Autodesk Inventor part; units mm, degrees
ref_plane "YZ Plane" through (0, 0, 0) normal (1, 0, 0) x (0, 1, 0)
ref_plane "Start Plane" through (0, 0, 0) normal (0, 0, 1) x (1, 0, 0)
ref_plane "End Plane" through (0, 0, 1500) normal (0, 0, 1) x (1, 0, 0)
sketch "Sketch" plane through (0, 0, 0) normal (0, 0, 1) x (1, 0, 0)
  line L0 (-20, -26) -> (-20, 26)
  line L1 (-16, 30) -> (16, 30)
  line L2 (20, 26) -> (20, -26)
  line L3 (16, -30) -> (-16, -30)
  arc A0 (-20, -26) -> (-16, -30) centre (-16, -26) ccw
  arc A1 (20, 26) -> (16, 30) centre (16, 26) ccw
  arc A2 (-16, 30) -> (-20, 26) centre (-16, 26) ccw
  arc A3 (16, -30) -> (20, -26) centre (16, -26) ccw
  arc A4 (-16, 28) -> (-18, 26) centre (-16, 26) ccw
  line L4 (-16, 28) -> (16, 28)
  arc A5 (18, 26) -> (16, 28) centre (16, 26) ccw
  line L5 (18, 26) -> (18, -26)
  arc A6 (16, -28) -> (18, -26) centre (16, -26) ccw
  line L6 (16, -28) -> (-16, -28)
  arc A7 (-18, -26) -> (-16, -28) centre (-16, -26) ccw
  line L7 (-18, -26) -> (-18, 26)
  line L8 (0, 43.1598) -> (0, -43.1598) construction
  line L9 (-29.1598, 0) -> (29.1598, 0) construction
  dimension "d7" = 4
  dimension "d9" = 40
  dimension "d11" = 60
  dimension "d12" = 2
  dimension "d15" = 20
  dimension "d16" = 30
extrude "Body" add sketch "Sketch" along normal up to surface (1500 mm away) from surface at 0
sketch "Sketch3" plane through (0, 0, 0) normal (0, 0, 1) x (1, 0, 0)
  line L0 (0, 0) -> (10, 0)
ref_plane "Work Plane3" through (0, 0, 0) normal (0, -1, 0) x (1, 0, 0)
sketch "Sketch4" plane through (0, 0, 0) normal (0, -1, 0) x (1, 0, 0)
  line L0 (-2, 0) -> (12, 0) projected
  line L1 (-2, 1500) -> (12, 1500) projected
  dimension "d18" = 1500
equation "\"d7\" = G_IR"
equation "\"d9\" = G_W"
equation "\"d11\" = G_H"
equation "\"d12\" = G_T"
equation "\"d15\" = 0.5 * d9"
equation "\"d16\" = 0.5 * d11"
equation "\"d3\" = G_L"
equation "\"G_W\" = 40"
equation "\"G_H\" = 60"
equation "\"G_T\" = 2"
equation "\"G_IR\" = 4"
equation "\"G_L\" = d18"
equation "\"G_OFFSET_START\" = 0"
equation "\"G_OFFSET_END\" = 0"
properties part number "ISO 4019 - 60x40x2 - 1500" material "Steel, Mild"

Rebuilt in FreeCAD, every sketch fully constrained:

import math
import FreeCAD as App
import Part
import Sketcher
Q = App.Units.Quantity

doc = App.newDocument("Part")
body = doc.addObject("PartDesign::Body", "Body")

# Sketch on XY plane
sketch1 = body.newObject("Sketcher::SketchObject", "Sketch")
sketch1.AttachmentSupport = (doc.getObject("XY_Plane"), [""])
sketch1.MapMode = "FlatFace"
sketch1.addGeometry([
    Part.LineSegment(App.Vector(-20, 26, 0), App.Vector(-20, -26, 0)),  # 0
    Part.ArcOfCircle(Part.Circle(App.Vector(-16, -26, 0), App.Vector(0, 0, 1), 4), math.radians(180), math.radians(270)),  # 1
    Part.LineSegment(App.Vector(-16, -30, 0), App.Vector(16, -30, 0)),  # 2
    Part.ArcOfCircle(Part.Circle(App.Vector(16, -26, 0), App.Vector(0, 0, 1), 4), math.radians(-90), math.radians(0)),  # 3
    Part.LineSegment(App.Vector(20, -26, 0), App.Vector(20, 26, 0)),  # 4
    Part.ArcOfCircle(Part.Circle(App.Vector(16, 26, 0), App.Vector(0, 0, 1), 4), math.radians(0), math.radians(90)),  # 5
    Part.LineSegment(App.Vector(16, 30, 0), App.Vector(-16, 30, 0)),  # 6
    Part.ArcOfCircle(Part.Circle(App.Vector(-16, 26, 0), App.Vector(0, 0, 1), 4), math.radians(90), math.radians(180)),  # 7
    Part.ArcOfCircle(Part.Circle(App.Vector(-16, 26, 0), App.Vector(0, 0, 1), 2), math.radians(90), math.radians(180)),  # 8
    Part.LineSegment(App.Vector(-16, 28, 0), App.Vector(16, 28, 0)),  # 9
    Part.ArcOfCircle(Part.Circle(App.Vector(16, 26, 0), App.Vector(0, 0, 1), 2), math.radians(0), math.radians(90)),  # 10
    Part.LineSegment(App.Vector(18, 26, 0), App.Vector(18, -26, 0)),  # 11
    Part.ArcOfCircle(Part.Circle(App.Vector(16, -26, 0), App.Vector(0, 0, 1), 2), math.radians(-90), math.radians(0)),  # 12
    Part.LineSegment(App.Vector(16, -28, 0), App.Vector(-16, -28, 0)),  # 13
    Part.ArcOfCircle(Part.Circle(App.Vector(-16, -26, 0), App.Vector(0, 0, 1), 2), math.radians(180), math.radians(270)),  # 14
    Part.LineSegment(App.Vector(-18, -26, 0), App.Vector(-18, 26, 0)),  # 15
], False)
sketch1.addConstraint([
    Sketcher.Constraint("Tangent", 0, 2, 1, 1),
    Sketcher.Constraint("Tangent", 1, 2, 2, 1),
    Sketcher.Constraint("Tangent", 2, 2, 3, 1),
    Sketcher.Constraint("Tangent", 3, 2, 4, 1),
    Sketcher.Constraint("Tangent", 4, 2, 5, 1),
    Sketcher.Constraint("Tangent", 5, 2, 6, 1),
    Sketcher.Constraint("Tangent", 6, 2, 7, 1),
    Sketcher.Constraint("Tangent", 7, 2, 0, 1),
    Sketcher.Constraint("Tangent", 8, 1, 9, 1),
    Sketcher.Constraint("Tangent", 9, 2, 10, 2),
    Sketcher.Constraint("Tangent", 10, 1, 11, 1),
    Sketcher.Constraint("Tangent", 11, 2, 12, 2),
    Sketcher.Constraint("Tangent", 12, 1, 13, 1),
    Sketcher.Constraint("Tangent", 13, 2, 14, 2),
    Sketcher.Constraint("Tangent", 14, 1, 15, 1),
    Sketcher.Constraint("Tangent", 15, 2, 8, 2),
    Sketcher.Constraint("Vertical", 0),
    Sketcher.Constraint("Horizontal", 2),
    Sketcher.Constraint("Vertical", 4),
    Sketcher.Constraint("Horizontal", 6),
    Sketcher.Constraint("Horizontal", 9),
    Sketcher.Constraint("Vertical", 11),
    Sketcher.Constraint("Horizontal", 13),
    Sketcher.Constraint("Vertical", 15),
    Sketcher.Constraint("Coincident", 8, 3, 7, 3),
    Sketcher.Constraint("Coincident", 10, 3, 5, 3),
    Sketcher.Constraint("Coincident", 12, 3, 3, 3),
    Sketcher.Constraint("Equal", 1, 3),
    Sketcher.Constraint("Equal", 3, 5),
    Sketcher.Constraint("Equal", 5, 7),
    Sketcher.Constraint("Equal", 12, 14),
    Sketcher.Constraint("Symmetric", 1, 3, 5, 3, -1, 1),
    Sketcher.Constraint("Radius", 1, Q("4 mm")),
    Sketcher.Constraint("Radius", 8, Q("2 mm")),
    Sketcher.Constraint("DistanceX", 0, 2, -1, 1, Q("20 mm")),
    Sketcher.Constraint("DistanceY", 1, 2, -1, 1, Q("30 mm")),
])
pad1 = body.newObject("PartDesign::Pad", "Pad")
pad1.Profile = sketch1
pad1.Length = 1500

doc.recompute()
